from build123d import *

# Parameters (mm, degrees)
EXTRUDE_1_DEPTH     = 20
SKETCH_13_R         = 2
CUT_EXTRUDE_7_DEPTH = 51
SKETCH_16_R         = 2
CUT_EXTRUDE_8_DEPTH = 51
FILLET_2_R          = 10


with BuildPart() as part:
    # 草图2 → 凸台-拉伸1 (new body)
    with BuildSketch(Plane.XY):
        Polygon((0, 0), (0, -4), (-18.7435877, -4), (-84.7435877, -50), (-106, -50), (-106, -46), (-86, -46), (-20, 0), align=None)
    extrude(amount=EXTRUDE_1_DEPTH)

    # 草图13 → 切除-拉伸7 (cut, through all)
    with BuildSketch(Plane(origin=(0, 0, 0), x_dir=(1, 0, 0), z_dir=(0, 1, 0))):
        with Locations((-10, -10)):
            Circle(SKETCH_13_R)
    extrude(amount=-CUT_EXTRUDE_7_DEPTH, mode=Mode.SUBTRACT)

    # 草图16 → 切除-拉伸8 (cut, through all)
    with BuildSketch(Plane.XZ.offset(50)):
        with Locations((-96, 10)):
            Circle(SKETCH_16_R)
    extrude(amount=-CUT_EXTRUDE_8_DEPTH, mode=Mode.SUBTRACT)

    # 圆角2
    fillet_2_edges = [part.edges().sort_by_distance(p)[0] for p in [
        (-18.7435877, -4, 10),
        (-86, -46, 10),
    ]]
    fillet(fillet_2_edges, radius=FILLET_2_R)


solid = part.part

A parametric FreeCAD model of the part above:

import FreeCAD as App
import Part
import Sketcher

V = App.Vector
Q = App.Units.Quantity


def edges_at(feature, points):
    """Names of the edges that pass closest to the given points."""
    edges = feature.Shape.Edges
    near = lambda p: min(range(len(edges)), key=lambda i: edges[i].distToShape(Part.Vertex(*p))[0])
    return sorted({f"Edge{near(p) + 1}" for p in points})

doc = App.newDocument("Part")
body = doc.addObject("PartDesign::Body", "Body")

sketch1 = doc.addObject("Sketcher::SketchObject", "Sketch")
body.addObject(sketch1)
sketch1.AttachmentSupport = (doc.XY_Plane, [""])
sketch1.MapMode = "FlatFace"
sketch1.addGeometry(Part.LineSegment(V(0, -4, 0), V(0, 0, 0)), False)
sketch1.addGeometry(Part.LineSegment(V(0, 0, 0), V(-20, 0, 0)), False)
sketch1.addGeometry(Part.LineSegment(V(-20, 0, 0), V(-86, -46, 0)), False)
sketch1.addGeometry(Part.LineSegment(V(-86, -46, 0), V(-106, -46, 0)), False)
sketch1.addGeometry(Part.LineSegment(V(-106, -46, 0), V(-106, -50, 0)), False)
sketch1.addGeometry(Part.LineSegment(V(-106, -50, 0), V(-84.7, -50, 0)), False)
sketch1.addGeometry(Part.LineSegment(V(-84.7, -50, 0), V(-18.7, -4, 0)), False)
sketch1.addGeometry(Part.LineSegment(V(-18.7, -4, 0), V(0, -4, 0)), False)
sketch1.addConstraint(Sketcher.Constraint("Coincident", 0, 2, 1, 1))
sketch1.addConstraint(Sketcher.Constraint("Coincident", 1, 2, 2, 1))
sketch1.addConstraint(Sketcher.Constraint("Coincident", 2, 2, 3, 1))
sketch1.addConstraint(Sketcher.Constraint("Coincident", 3, 2, 4, 1))
sketch1.addConstraint(Sketcher.Constraint("Coincident", 4, 2, 5, 1))
sketch1.addConstraint(Sketcher.Constraint("Coincident", 5, 2, 6, 1))
sketch1.addConstraint(Sketcher.Constraint("Coincident", 6, 2, 7, 1))
sketch1.addConstraint(Sketcher.Constraint("Coincident", 7, 2, 0, 1))
sketch1.addConstraint(Sketcher.Constraint("Vertical", 0))
sketch1.addConstraint(Sketcher.Constraint("Horizontal", 1))
sketch1.addConstraint(Sketcher.Constraint("Horizontal", 3))
sketch1.addConstraint(Sketcher.Constraint("Vertical", 4))
sketch1.addConstraint(Sketcher.Constraint("Horizontal", 5))
sketch1.addConstraint(Sketcher.Constraint("Horizontal", 7))
sketch1.addConstraint(Sketcher.Constraint("Coincident", 0, 2, -1, 1))
sketch1.addConstraint(Sketcher.Constraint("Parallel", 2, 6))
sketch1.addConstraint(Sketcher.Constraint("Equal", 1, 3))
sketch1.addConstraint(Sketcher.Constraint("Equal", 0, 4))
sketch1.addConstraint(Sketcher.Constraint("DistanceX", 1, 2, 1, 1, Q("20 mm")))
sketch1.addConstraint(Sketcher.Constraint("DistanceY", 0, 1, 0, 2, Q("4 mm")))
sketch1.addConstraint(Sketcher.Constraint("DistanceX", 2, 2, -1, 1, Q("86 mm")))
sketch1.addConstraint(Sketcher.Constraint("DistanceY", 2, 2, -1, 1, Q("46 mm")))
sketch1.addConstraint(Sketcher.Constraint("DistanceX", 5, 1, 5, 2, Q("21.256412 mm")))
pad1 = doc.addObject("PartDesign::Pad", "Pad")
body.addObject(pad1)
pad1.Profile = sketch1
pad1.Length = 20

sketch2 = doc.addObject("Sketcher::SketchObject", "Sketch001")
body.addObject(sketch2)
sketch2.AttachmentSupport = (doc.XZ_Plane, [""])
sketch2.MapMode = "FlatFace"
sketch2.addGeometry(Part.Circle(V(-10, 10, 0), V(0, 0, 1), 2), False)
sketch2.addConstraint(Sketcher.Constraint("Diameter", 0, Q("4 mm")))
sketch2.addConstraint(Sketcher.Constraint("DistanceX", 0, 3, -1, 1, Q("10 mm")))
sketch2.addConstraint(Sketcher.Constraint("DistanceY", -1, 1, 0, 3, Q("10 mm")))
pocket1 = doc.addObject("PartDesign::Pocket", "Pocket")
body.addObject(pocket1)
pocket1.Profile = sketch2
pocket1.Type = "ThroughAll"
pocket1.Reversed = True

sketch3 = doc.addObject("Sketcher::SketchObject", "Sketch002")
body.addObject(sketch3)
sketch3.AttachmentSupport = (doc.XZ_Plane, [""])
sketch3.MapMode = "FlatFace"
sketch3.AttachmentOffset = App.Placement(V(0, 0, 50), App.Rotation())
sketch3.addGeometry(Part.Circle(V(-96, 10, 0), V(0, 0, 1), 2), False)
sketch3.addConstraint(Sketcher.Constraint("Diameter", 0, Q("4 mm")))
sketch3.addConstraint(Sketcher.Constraint("DistanceX", 0, 3, -1, 1, Q("96 mm")))
sketch3.addConstraint(Sketcher.Constraint("DistanceY", -1, 1, 0, 3, Q("10 mm")))
pocket2 = doc.addObject("PartDesign::Pocket", "Pocket001")
body.addObject(pocket2)
pocket2.Profile = sketch3
pocket2.Type = "ThroughAll"
doc.recompute()

fillet = doc.addObject("PartDesign::Fillet", "Fillet")
body.addObject(fillet)
fillet.Base = (pocket2, edges_at(pocket2, [(-18.744, -4, 10), (-86, -46, 10)]))
fillet.Radius = 10

doc.recompute()
